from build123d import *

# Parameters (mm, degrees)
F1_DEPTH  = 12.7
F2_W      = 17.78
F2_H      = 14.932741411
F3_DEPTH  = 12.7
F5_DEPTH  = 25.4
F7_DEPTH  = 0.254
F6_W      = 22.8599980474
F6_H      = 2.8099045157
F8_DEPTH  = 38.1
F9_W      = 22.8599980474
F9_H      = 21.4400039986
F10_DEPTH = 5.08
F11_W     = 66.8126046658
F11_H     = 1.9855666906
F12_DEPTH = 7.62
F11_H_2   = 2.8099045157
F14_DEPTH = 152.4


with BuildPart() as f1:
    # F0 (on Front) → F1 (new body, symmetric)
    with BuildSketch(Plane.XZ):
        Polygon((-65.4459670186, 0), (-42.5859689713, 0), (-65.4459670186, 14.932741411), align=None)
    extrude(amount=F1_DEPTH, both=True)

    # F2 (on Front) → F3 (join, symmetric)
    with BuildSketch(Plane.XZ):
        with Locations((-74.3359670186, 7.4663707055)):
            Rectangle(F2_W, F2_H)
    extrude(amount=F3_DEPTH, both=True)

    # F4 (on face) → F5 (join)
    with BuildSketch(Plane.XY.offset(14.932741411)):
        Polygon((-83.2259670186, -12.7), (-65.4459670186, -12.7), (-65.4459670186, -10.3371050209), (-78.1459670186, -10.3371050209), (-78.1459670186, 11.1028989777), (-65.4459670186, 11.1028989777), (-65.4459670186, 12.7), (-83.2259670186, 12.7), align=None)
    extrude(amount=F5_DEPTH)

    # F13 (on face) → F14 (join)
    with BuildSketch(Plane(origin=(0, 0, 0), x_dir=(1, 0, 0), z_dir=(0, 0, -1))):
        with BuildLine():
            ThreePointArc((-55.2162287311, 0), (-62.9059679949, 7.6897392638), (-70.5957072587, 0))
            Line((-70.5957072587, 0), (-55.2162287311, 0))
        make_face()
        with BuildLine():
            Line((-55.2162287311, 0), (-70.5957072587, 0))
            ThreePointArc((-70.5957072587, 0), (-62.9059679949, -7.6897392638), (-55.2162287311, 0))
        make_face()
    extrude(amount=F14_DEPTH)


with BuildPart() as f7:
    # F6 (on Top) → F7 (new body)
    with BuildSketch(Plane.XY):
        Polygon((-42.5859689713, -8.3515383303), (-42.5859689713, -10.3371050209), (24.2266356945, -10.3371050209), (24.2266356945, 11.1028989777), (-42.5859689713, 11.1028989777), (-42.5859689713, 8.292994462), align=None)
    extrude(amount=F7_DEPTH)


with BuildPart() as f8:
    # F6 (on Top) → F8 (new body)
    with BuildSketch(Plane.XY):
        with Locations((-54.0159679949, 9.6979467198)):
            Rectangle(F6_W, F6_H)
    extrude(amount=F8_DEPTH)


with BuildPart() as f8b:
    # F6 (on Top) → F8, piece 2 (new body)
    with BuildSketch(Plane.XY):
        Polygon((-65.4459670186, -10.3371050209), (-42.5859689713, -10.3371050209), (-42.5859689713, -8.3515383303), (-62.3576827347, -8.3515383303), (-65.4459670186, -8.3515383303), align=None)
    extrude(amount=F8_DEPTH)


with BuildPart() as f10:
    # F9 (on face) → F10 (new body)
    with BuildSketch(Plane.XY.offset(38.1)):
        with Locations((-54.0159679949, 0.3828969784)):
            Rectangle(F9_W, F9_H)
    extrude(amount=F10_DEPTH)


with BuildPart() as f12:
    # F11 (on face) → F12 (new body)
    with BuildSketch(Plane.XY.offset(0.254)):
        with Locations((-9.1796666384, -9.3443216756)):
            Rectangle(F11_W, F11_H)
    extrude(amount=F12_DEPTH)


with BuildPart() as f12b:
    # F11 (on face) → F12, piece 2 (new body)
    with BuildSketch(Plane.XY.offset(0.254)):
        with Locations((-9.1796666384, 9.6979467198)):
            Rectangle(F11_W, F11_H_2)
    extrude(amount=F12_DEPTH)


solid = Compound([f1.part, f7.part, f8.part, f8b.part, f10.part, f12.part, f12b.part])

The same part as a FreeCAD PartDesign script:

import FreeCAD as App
import Part
import Sketcher
from FreeCAD import Vector
Q = App.Units.Quantity


def add_polygon(sketch, points):
    """Adds a closed chain of lines whose ends are joined by coincident constraints."""
    first, n = sketch.GeometryCount, len(points)
    for a, b in zip(points, points[1:] + points[:1]):
        sketch.addGeometry(Part.LineSegment(App.Vector(*a, 0), App.Vector(*b, 0)), False)
    for i in range(n):
        sketch.addConstraint(Sketcher.Constraint("Coincident", first + i, 2, first + (i + 1) % n, 1))

doc = App.newDocument("Part")
params = doc.addObject("Spreadsheet::Sheet", "Params")
for row, (alias, value) in enumerate([
    ("sketch1_width", "0.8999999 in"),
    ("pad1_length", "1 in"),
    ("sketch2_width", "0.7 in"),
    ("pad2_length", "1 in"),
    ("sketch3_height", "1 in"),
    ("sketch3_width", "0.7 in"),
    ("sketch3_width2", "0.5 in"),
    ("pad3_length", "1 in"),
    ("pad4_length", "6 in"),
    ("pad5_length", "0.01 in"),
    ("sketch6_width", "0.8999999 in"),
    ("pad6_length", "1.5 in"),
    ("sketch7_width", "0.8999999 in"),
    ("pad7_length", "1.5 in"),
    ("sketch8_width", "0.8999999 in"),
    ("pad8_length", "0.2 in"),
    ("pad9_length", "0.3 in"),
    ("pad10_length", "0.3 in"),
], start=1):
    params.set(f"A{row}", alias)
    params.set(f"B{row}", "=" + value)
    params.setAlias(f"B{row}", alias)

body = doc.addObject("PartDesign::Body", "Body")

sketch1 = body.newObject("Sketcher::SketchObject", "Sketch")
sketch1.AttachmentSupport = (doc.getObject("XZ_Plane"), [""])
sketch1.MapMode = "FlatFace"
add_polygon(sketch1, [(-65.445967, 0), (-42.585969, 0), (-65.445967, 14.932741)])
sketch1.addConstraint([
    Sketcher.Constraint("Horizontal", 0),
    Sketcher.Constraint("Vertical", 2),
    Sketcher.Constraint("PointOnObject", 0, 2, -1),
    Sketcher.Constraint("DistanceX", 0, 1, 0, 2, Q("0.8999999 in")),
    Sketcher.Constraint("DistanceY", 2, 2, 2, 1, Q("14.932741 mm")),
    Sketcher.Constraint("DistanceX", 0, 2, -1, 1, Q("42.585969 mm")),
])
sketch1.setExpression("Constraints[6]", "Params.sketch1_width")
pad1 = body.newObject("PartDesign::Pad", "Pad")
pad1.Profile = sketch1
pad1.setExpression("Length", "Params.pad1_length")
pad1.Midplane = True

sketch2 = body.newObject("Sketcher::SketchObject", "Sketch001")
sketch2.AttachmentSupport = (doc.getObject("XZ_Plane"), [""])
sketch2.MapMode = "FlatFace"
add_polygon(sketch2, [(-83.225967, 14.932741), (-83.225967, 0), (-65.445967, 0), (-65.445967, 14.932741)])
sketch2.addConstraint([
    Sketcher.Constraint("Vertical", 0),
    Sketcher.Constraint("Horizontal", 1),
    Sketcher.Constraint("Vertical", 2),
    Sketcher.Constraint("Horizontal", 3),
    Sketcher.Constraint("PointOnObject", 0, 2, -1),
    Sketcher.Constraint("DistanceX", 1, 1, 1, 2, Q("0.7 in")),
    Sketcher.Constraint("DistanceY", 0, 2, 0, 1, Q("14.932741 mm")),
    Sketcher.Constraint("DistanceX", 0, 2, -1, 1, Q("83.225967 mm")),
])
sketch2.setExpression("Constraints[9]", "Params.sketch2_width")
pad2 = body.newObject("PartDesign::Pad", "Pad001")
pad2.Profile = sketch2
pad2.setExpression("Length", "Params.pad2_length")
pad2.Midplane = True

sketch3 = body.newObject("Sketcher::SketchObject", "Sketch002")
sketch3.AttachmentSupport = (doc.getObject("XY_Plane"), [""])
sketch3.MapMode = "FlatFace"
sketch3.AttachmentOffset = App.Placement(Vector(0, 0, 14.932741), App.Rotation())
add_polygon(sketch3, [(-83.225967, -12.7), (-65.445967, -12.7), (-65.445967, -10.337105), (-78.145967, -10.337105), (-78.145967, 11.102899), (-65.445967, 11.102899), (-65.445967, 12.7), (-83.225967, 12.7)])
sketch3.addConstraint([
    Sketcher.Constraint("Horizontal", 0),
    Sketcher.Constraint("Vertical", 1),
    Sketcher.Constraint("Horizontal", 2),
    Sketcher.Constraint("Vertical", 3),
    Sketcher.Constraint("Horizontal", 4),
    Sketcher.Constraint("Vertical", 5),
    Sketcher.Constraint("Horizontal", 6),
    Sketcher.Constraint("Vertical", 7),
    Sketcher.Constraint("Symmetric", 0, 2, 5, 2, -1),
    Sketcher.Constraint("DistanceY", 7, 2, 7, 1, Q("1 in")),
    Sketcher.Constraint("DistanceX", 0, 1, 0, 2, Q("0.7 in")),
    Sketcher.Constraint("DistanceX", 2, 2, 2, 1, Q("0.5 in")),
    Sketcher.Constraint("DistanceY", 5, 1, 5, 2, Q("1.597101 mm")),
    Sketcher.Constraint("DistanceY", 1, 1, 1, 2, Q("2.362895 mm")),
    Sketcher.Constraint("DistanceX", 0, 2, -1, 1, Q("65.445967 mm")),
])
sketch3.setExpression("Constraints[17]", "Params.sketch3_height")
sketch3.setExpression("Constraints[18]", "Params.sketch3_width")
sketch3.setExpression("Constraints[19]", "Params.sketch3_width2")
pad3 = body.newObject("PartDesign::Pad", "Pad002")
pad3.Profile = sketch3
pad3.setExpression("Length", "Params.pad3_length")

sketch4 = body.newObject("Sketcher::SketchObject", "Sketch003")
sketch4.AttachmentSupport = (doc.getObject("XY_Plane"), [""])
sketch4.MapMode = "FlatFace"
sketch4.addGeometry(Part.Circle(Vector(-62.905968, 0, 0), Vector(0, 0, 1), 7.689739), False)
sketch4.addConstraint([
    Sketcher.Constraint("PointOnObject", 0, 3, -1),
    Sketcher.Constraint("Diameter", 0, Q("15.379479 mm")),
    Sketcher.Constraint("DistanceX", 0, 3, -1, 1, Q("62.905968 mm")),
])
pad4 = body.newObject("PartDesign::Pad", "Pad003")
pad4.Profile = sketch4
pad4.setExpression("Length", "Params.pad4_length")
pad4.Reversed = True
body2 = doc.addObject("PartDesign::Body", "Body001")

sketch5 = body2.newObject("Sketcher::SketchObject", "Sketch004")
sketch5.AttachmentSupport = (doc.getObject("XY_Plane001"), [""])
sketch5.MapMode = "FlatFace"
add_polygon(sketch5, [(-42.585969, -10.337105), (24.226636, -10.337105), (24.226636, 11.102899), (-42.585969, 11.102899)])
sketch5.addConstraint([
    Sketcher.Constraint("Horizontal", 0),
    Sketcher.Constraint("Vertical", 1),
    Sketcher.Constraint("Horizontal", 2),
    Sketcher.Constraint("Vertical", 3),
    Sketcher.Constraint("DistanceY", -1, 1, 1, 2, Q("11.102899 mm")),
    Sketcher.Constraint("DistanceX", 0, 1, 0, 2, Q("66.812605 mm")),
    Sketcher.Constraint("DistanceY", 1, 1, 1, 2, Q("21.440004 mm")),
    Sketcher.Constraint("DistanceX", 2, 2, -1, 1, Q("42.585969 mm")),
])
pad5 = body2.newObject("PartDesign::Pad", "Pad004")
pad5.Profile = sketch5
pad5.setExpression("Length", "Params.pad5_length")
body3 = doc.addObject("PartDesign::Body", "Body002")

sketch6 = body3.newObject("Sketcher::SketchObject", "Sketch005")
sketch6.AttachmentSupport = (doc.getObject("XY_Plane002"), [""])
sketch6.MapMode = "FlatFace"
add_polygon(sketch6, [(-65.445967, 11.102899), (-65.445967, 8.292994), (-42.585969, 8.292994), (-42.585969, 11.102899)])
sketch6.addConstraint([
    Sketcher.Constraint("Vertical", 0),
    Sketcher.Constraint("Horizontal", 1),
    Sketcher.Constraint("Vertical", 2),
    Sketcher.Constraint("Horizontal", 3),
    Sketcher.Constraint("DistanceX", 1, 1, 1, 2, Q("0.8999999 in")),
    Sketcher.Constraint("DistanceY", -1, 1, 2, 2, Q("11.102899 mm")),
    Sketcher.Constraint("DistanceY", 0, 2, 0, 1, Q("2.809905 mm")),
    Sketcher.Constraint("DistanceX", 1, 2, -1, 1, Q("42.585969 mm")),
])
sketch6.setExpression("Constraints[8]", "Params.sketch6_width")
pad6 = body3.newObject("PartDesign::Pad", "Pad005")
pad6.Profile = sketch6
pad6.setExpression("Length", "Params.pad6_length")
body4 = doc.addObject("PartDesign::Body", "Body003")

sketch7 = body4.newObject("Sketcher::SketchObject", "Sketch006")
sketch7.AttachmentSupport = (doc.getObject("XY_Plane003"), [""])
sketch7.MapMode = "FlatFace"
add_polygon(sketch7, [(-65.445967, -10.337105), (-42.585969, -10.337105), (-42.585969, -8.351538), (-65.445967, -8.351538)])
sketch7.addConstraint([
    Sketcher.Constraint("Horizontal", 0),
    Sketcher.Constraint("Vertical", 1),
    Sketcher.Constraint("Horizontal", 2),
    Sketcher.Constraint("Vertical", 3),
    Sketcher.Constraint("DistanceX", 0, 1, 0, 2, Q("0.8999999 in")),
    Sketcher.Constraint("DistanceY", 1, 1, 1, 2, Q("1.985567 mm")),
    Sketcher.Constraint("DistanceX", 0, 2, -1, 1, Q("42.585969 mm")),
    Sketcher.Constraint("DistanceY", 1, 2, -1, 1, Q("8.351538 mm")),
])
sketch7.setExpression("Constraints[8]", "Params.sketch7_width")
pad7 = body4.newObject("PartDesign::Pad", "Pad006")
pad7.Profile = sketch7
pad7.setExpression("Length", "Params.pad7_length")
body5 = doc.addObject("PartDesign::Body", "Body004")

sketch8 = body5.newObject("Sketcher::SketchObject", "Sketch007")
sketch8.AttachmentSupport = (doc.getObject("XY_Plane004"), [""])
sketch8.MapMode = "FlatFace"
sketch8.AttachmentOffset = App.Placement(Vector(0, 0, 1.5 * 25.4), App.Rotation())
add_polygon(sketch8, [(-65.445967, 11.102899), (-65.445967, -10.337105), (-42.585969, -10.337105), (-42.585969, 11.102899)])
sketch8.addConstraint([
    Sketcher.Constraint("Vertical", 0),
    Sketcher.Constraint("Horizontal", 1),
    Sketcher.Constraint("Vertical", 2),
    Sketcher.Constraint("Horizontal", 3),
    Sketcher.Constraint("DistanceX", 1, 1, 1, 2, Q("0.8999999 in")),
    Sketcher.Constraint("DistanceY", -1, 1, 2, 2, Q("11.102899 mm")),
    Sketcher.Constraint("DistanceY", 0, 2, 0, 1, Q("21.440004 mm")),
    Sketcher.Constraint("DistanceX", 1, 2, -1, 1, Q("42.585969 mm")),
])
sketch8.setExpression("Constraints[8]", "Params.sketch8_width")
pad8 = body5.newObject("PartDesign::Pad", "Pad007")
pad8.Profile = sketch8
pad8.setExpression("Length", "Params.pad8_length")
body6 = doc.addObject("PartDesign::Body", "Body005")

sketch9 = body6.newObject("Sketcher::SketchObject", "Sketch008")
sketch9.AttachmentSupport = (doc.getObject("XY_Plane005"), [""])
sketch9.MapMode = "FlatFace"
sketch9.AttachmentOffset = App.Placement(Vector(0, 0, 0.01 * 25.4), App.Rotation())
add_polygon(sketch9, [(-42.585969, -8.351538), (-42.585969, -10.337105), (24.226636, -10.337105), (24.226636, -8.351538)])
sketch9.addConstraint([
    Sketcher.Constraint("Vertical", 0),
    Sketcher.Constraint("Horizontal", 1),
    Sketcher.Constraint("Vertical", 2),
    Sketcher.Constraint("Horizontal", 3),
    Sketcher.Constraint("DistanceX", 1, 1, 1, 2, Q("66.812605 mm")),
    Sketcher.Constraint("DistanceY", 0, 2, 0, 1, Q("1.985567 mm")),
    Sketcher.Constraint("DistanceX", 0, 2, -1, 1, Q("42.585969 mm")),
    Sketcher.Constraint("DistanceY", 2, 2, -1, 1, Q("8.351538 mm")),
])
pad9 = body6.newObject("PartDesign::Pad", "Pad008")
pad9.Profile = sketch9
pad9.setExpression("Length", "Params.pad9_length")
body7 = doc.addObject("PartDesign::Body", "Body006")

sketch10 = body7.newObject("Sketcher::SketchObject", "Sketch009")
sketch10.AttachmentSupport = (doc.getObject("XY_Plane006"), [""])
sketch10.MapMode = "FlatFace"
sketch10.AttachmentOffset = App.Placement(Vector(0, 0, 0.01 * 25.4), App.Rotation())
add_polygon(sketch10, [(-42.585969, 11.102899), (-42.585969, 8.292994), (24.226636, 8.292994), (24.226636, 11.102899)])
sketch10.addConstraint([
    Sketcher.Constraint("Vertical", 0),
    Sketcher.Constraint("Horizontal", 1),
    Sketcher.Constraint("Vertical", 2),
    Sketcher.Constraint("Horizontal", 3),
    Sketcher.Constraint("DistanceY", -1, 1, 2, 2, Q("11.102899 mm")),
    Sketcher.Constraint("DistanceX", 1, 1, 1, 2, Q("66.812605 mm")),
    Sketcher.Constraint("DistanceY", 0, 2, 0, 1, Q("2.809905 mm")),
    Sketcher.Constraint("DistanceX", 0, 2, -1, 1, Q("42.585969 mm")),
])
pad10 = body7.newObject("PartDesign::Pad", "Pad009")
pad10.Profile = sketch10
pad10.setExpression("Length", "Params.pad10_length")

doc.recompute()
